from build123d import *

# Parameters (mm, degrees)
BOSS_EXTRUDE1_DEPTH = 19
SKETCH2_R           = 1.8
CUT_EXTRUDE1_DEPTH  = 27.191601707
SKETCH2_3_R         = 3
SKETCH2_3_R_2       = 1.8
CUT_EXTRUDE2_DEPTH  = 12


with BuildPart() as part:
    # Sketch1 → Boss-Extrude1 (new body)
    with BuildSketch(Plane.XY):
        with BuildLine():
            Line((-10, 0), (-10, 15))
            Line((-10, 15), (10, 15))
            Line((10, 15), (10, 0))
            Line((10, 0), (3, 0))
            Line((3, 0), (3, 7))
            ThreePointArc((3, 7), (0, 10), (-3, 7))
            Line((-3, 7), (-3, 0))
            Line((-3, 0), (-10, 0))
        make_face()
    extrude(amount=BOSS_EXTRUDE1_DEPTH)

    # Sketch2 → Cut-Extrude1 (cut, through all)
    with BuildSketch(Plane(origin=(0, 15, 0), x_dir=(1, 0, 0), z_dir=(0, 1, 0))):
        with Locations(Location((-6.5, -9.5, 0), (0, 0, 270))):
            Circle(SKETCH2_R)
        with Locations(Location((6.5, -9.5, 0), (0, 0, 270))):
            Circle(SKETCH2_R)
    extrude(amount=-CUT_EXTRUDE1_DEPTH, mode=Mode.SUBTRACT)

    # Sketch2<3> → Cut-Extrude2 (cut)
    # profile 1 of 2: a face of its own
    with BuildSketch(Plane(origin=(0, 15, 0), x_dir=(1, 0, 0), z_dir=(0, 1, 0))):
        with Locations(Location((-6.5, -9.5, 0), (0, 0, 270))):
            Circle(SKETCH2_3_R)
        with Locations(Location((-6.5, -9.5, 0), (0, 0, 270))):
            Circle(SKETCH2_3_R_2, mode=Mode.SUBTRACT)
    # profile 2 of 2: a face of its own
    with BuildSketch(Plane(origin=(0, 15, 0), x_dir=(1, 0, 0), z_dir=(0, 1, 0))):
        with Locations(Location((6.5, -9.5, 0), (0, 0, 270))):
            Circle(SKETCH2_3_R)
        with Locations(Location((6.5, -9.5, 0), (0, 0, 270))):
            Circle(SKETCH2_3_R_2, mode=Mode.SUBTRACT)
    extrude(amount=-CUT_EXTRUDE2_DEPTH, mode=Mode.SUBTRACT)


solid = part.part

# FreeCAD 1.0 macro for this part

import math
import FreeCAD as App
import Part
import Sketcher

V = App.Vector
Q = App.Units.Quantity

doc = App.newDocument("Part")
body = doc.addObject("PartDesign::Body", "Body")

sketch1 = doc.addObject("Sketcher::SketchObject", "Sketch")
body.addObject(sketch1)
sketch1.AttachmentSupport = (doc.XY_Plane, [""])
sketch1.MapMode = "FlatFace"
sketch1.addGeometry(Part.LineSegment(V(-10, 15, 0), V(-10, 0, 0)), False)
sketch1.addGeometry(Part.LineSegment(V(-10, 0, 0), V(-3, 0, 0)), False)
sketch1.addGeometry(Part.LineSegment(V(-3, 0, 0), V(-3, 7, 0)), False)
sketch1.addGeometry(Part.ArcOfCircle(Part.Circle(V(0, 7, 0), V(0, 0, 1), 3), math.radians(0), math.radians(180)), False)
sketch1.addGeometry(Part.LineSegment(V(3, 7, 0), V(3, 0, 0)), False)
sketch1.addGeometry(Part.LineSegment(V(3, 0, 0), V(10, 0, 0)), False)
sketch1.addGeometry(Part.LineSegment(V(10, 0, 0), V(10, 15, 0)), False)
sketch1.addGeometry(Part.LineSegment(V(10, 15, 0), V(-10, 15, 0)), False)
sketch1.addConstraint(Sketcher.Constraint("Coincident", 0, 2, 1, 1))
sketch1.addConstraint(Sketcher.Constraint("Coincident", 1, 2, 2, 1))
sketch1.addConstraint(Sketcher.Constraint("Tangent", 2, 2, 3, 2))
sketch1.addConstraint(Sketcher.Constraint("Tangent", 3, 1, 4, 1))
sketch1.addConstraint(Sketcher.Constraint("Coincident", 4, 2, 5, 1))
sketch1.addConstraint(Sketcher.Constraint("Coincident", 5, 2, 6, 1))
sketch1.addConstraint(Sketcher.Constraint("Coincident", 6, 2, 7, 1))
sketch1.addConstraint(Sketcher.Constraint("Coincident", 7, 2, 0, 1))
sketch1.addConstraint(Sketcher.Constraint("Vertical", 0))
sketch1.addConstraint(Sketcher.Constraint("Horizontal", 1))
sketch1.addConstraint(Sketcher.Constraint("Vertical", 2))
sketch1.addConstraint(Sketcher.Constraint("Vertical", 4))
sketch1.addConstraint(Sketcher.Constraint("Horizontal", 5))
sketch1.addConstraint(Sketcher.Constraint("Vertical", 6))
sketch1.addConstraint(Sketcher.Constraint("Horizontal", 7))
sketch1.addConstraint(Sketcher.Constraint("Symmetric", 1, 2, 4, 2, -1, 1))
sketch1.addConstraint(Sketcher.Constraint("Symmetric", 0, 2, 5, 2, -2))
sketch1.addConstraint(Sketcher.Constraint("Equal", 5, 2))
sketch1.addConstraint(Sketcher.Constraint("Radius", 3, Q("3 mm")))
sketch1.addConstraint(Sketcher.Constraint("DistanceX", 1, 1, 1, 2, Q("7 mm")))
sketch1.addConstraint(Sketcher.Constraint("DistanceY", 0, 2, 0, 1, Q("15 mm")))
pad1 = doc.addObject("PartDesign::Pad", "Pad")
body.addObject(pad1)
pad1.Profile = sketch1
pad1.Length = 19

sketch2 = doc.addObject("Sketcher::SketchObject", "Sketch001")
body.addObject(sketch2)
sketch2.AttachmentSupport = (doc.XZ_Plane, [""])
sketch2.MapMode = "FlatFace"
sketch2.AttachmentOffset = App.Placement(V(0, 0, -15), App.Rotation())
sketch2.addGeometry(Part.Circle(V(-6.5, 9.5, 0), V(0, 0, 1), 1.8), False)
sketch2.addGeometry(Part.Circle(V(6.5, 9.5, 0), V(0, 0, 1), 1.8), False)
sketch2.addConstraint(Sketcher.Constraint("Equal", 0, 1))
sketch2.addConstraint(Sketcher.Constraint("Symmetric", 0, 3, 1, 3, -2))
sketch2.addConstraint(Sketcher.Constraint("Diameter", 0, Q("3.6 mm")))
sketch2.addConstraint(Sketcher.Constraint("DistanceX", 0, 3, 1, 3, Q("13 mm")))
sketch2.addConstraint(Sketcher.Constraint("DistanceY", -1, 1, 0, 3, Q("9.5 mm")))
pocket1 = doc.addObject("PartDesign::Pocket", "Pocket")
body.addObject(pocket1)
pocket1.Profile = sketch2
pocket1.Type = "ThroughAll"
pocket1.Reversed = True

sketch3 = doc.addObject("Sketcher::SketchObject", "Sketch002")
body.addObject(sketch3)
sketch3.AttachmentSupport = (doc.XZ_Plane, [""])
sketch3.MapMode = "FlatFace"
sketch3.AttachmentOffset = App.Placement(V(0, 0, -15), App.Rotation())
sketch3.addGeometry(Part.Circle(V(-6.5, 9.5, 0), V(0, 0, 1), 3), False)
sketch3.addGeometry(Part.Circle(V(-6.5, 9.5, 0), V(0, 0, 1), 1.8), False)
sketch3.addGeometry(Part.Circle(V(6.5, 9.5, 0), V(0, 0, 1), 3), False)
sketch3.addGeometry(Part.Circle(V(6.5, 9.5, 0), V(0, 0, 1), 1.8), False)
sketch3.addConstraint(Sketcher.Constraint("Coincident", 1, 3, 0, 3))
sketch3.addConstraint(Sketcher.Constraint("Coincident", 3, 3, 2, 3))
sketch3.addConstraint(Sketcher.Constraint("Equal", 0, 2))
sketch3.addConstraint(Sketcher.Constraint("Equal", 1, 3))
sketch3.addConstraint(Sketcher.Constraint("Symmetric", 0, 3, 2, 3, -2))
sketch3.addConstraint(Sketcher.Constraint("Diameter", 0, Q("6 mm")))
sketch3.addConstraint(Sketcher.Constraint("Diameter", 1, Q("3.6 mm")))
sketch3.addConstraint(Sketcher.Constraint("DistanceX", 0, 3, 2, 3, Q("13 mm")))
sketch3.addConstraint(Sketcher.Constraint("DistanceY", -1, 1, 0, 3, Q("9.5 mm")))
pocket2 = doc.addObject("PartDesign::Pocket", "Pocket001")
body.addObject(pocket2)
pocket2.Profile = sketch3
pocket2.Length = 12
pocket2.Reversed = True

doc.recompute()
